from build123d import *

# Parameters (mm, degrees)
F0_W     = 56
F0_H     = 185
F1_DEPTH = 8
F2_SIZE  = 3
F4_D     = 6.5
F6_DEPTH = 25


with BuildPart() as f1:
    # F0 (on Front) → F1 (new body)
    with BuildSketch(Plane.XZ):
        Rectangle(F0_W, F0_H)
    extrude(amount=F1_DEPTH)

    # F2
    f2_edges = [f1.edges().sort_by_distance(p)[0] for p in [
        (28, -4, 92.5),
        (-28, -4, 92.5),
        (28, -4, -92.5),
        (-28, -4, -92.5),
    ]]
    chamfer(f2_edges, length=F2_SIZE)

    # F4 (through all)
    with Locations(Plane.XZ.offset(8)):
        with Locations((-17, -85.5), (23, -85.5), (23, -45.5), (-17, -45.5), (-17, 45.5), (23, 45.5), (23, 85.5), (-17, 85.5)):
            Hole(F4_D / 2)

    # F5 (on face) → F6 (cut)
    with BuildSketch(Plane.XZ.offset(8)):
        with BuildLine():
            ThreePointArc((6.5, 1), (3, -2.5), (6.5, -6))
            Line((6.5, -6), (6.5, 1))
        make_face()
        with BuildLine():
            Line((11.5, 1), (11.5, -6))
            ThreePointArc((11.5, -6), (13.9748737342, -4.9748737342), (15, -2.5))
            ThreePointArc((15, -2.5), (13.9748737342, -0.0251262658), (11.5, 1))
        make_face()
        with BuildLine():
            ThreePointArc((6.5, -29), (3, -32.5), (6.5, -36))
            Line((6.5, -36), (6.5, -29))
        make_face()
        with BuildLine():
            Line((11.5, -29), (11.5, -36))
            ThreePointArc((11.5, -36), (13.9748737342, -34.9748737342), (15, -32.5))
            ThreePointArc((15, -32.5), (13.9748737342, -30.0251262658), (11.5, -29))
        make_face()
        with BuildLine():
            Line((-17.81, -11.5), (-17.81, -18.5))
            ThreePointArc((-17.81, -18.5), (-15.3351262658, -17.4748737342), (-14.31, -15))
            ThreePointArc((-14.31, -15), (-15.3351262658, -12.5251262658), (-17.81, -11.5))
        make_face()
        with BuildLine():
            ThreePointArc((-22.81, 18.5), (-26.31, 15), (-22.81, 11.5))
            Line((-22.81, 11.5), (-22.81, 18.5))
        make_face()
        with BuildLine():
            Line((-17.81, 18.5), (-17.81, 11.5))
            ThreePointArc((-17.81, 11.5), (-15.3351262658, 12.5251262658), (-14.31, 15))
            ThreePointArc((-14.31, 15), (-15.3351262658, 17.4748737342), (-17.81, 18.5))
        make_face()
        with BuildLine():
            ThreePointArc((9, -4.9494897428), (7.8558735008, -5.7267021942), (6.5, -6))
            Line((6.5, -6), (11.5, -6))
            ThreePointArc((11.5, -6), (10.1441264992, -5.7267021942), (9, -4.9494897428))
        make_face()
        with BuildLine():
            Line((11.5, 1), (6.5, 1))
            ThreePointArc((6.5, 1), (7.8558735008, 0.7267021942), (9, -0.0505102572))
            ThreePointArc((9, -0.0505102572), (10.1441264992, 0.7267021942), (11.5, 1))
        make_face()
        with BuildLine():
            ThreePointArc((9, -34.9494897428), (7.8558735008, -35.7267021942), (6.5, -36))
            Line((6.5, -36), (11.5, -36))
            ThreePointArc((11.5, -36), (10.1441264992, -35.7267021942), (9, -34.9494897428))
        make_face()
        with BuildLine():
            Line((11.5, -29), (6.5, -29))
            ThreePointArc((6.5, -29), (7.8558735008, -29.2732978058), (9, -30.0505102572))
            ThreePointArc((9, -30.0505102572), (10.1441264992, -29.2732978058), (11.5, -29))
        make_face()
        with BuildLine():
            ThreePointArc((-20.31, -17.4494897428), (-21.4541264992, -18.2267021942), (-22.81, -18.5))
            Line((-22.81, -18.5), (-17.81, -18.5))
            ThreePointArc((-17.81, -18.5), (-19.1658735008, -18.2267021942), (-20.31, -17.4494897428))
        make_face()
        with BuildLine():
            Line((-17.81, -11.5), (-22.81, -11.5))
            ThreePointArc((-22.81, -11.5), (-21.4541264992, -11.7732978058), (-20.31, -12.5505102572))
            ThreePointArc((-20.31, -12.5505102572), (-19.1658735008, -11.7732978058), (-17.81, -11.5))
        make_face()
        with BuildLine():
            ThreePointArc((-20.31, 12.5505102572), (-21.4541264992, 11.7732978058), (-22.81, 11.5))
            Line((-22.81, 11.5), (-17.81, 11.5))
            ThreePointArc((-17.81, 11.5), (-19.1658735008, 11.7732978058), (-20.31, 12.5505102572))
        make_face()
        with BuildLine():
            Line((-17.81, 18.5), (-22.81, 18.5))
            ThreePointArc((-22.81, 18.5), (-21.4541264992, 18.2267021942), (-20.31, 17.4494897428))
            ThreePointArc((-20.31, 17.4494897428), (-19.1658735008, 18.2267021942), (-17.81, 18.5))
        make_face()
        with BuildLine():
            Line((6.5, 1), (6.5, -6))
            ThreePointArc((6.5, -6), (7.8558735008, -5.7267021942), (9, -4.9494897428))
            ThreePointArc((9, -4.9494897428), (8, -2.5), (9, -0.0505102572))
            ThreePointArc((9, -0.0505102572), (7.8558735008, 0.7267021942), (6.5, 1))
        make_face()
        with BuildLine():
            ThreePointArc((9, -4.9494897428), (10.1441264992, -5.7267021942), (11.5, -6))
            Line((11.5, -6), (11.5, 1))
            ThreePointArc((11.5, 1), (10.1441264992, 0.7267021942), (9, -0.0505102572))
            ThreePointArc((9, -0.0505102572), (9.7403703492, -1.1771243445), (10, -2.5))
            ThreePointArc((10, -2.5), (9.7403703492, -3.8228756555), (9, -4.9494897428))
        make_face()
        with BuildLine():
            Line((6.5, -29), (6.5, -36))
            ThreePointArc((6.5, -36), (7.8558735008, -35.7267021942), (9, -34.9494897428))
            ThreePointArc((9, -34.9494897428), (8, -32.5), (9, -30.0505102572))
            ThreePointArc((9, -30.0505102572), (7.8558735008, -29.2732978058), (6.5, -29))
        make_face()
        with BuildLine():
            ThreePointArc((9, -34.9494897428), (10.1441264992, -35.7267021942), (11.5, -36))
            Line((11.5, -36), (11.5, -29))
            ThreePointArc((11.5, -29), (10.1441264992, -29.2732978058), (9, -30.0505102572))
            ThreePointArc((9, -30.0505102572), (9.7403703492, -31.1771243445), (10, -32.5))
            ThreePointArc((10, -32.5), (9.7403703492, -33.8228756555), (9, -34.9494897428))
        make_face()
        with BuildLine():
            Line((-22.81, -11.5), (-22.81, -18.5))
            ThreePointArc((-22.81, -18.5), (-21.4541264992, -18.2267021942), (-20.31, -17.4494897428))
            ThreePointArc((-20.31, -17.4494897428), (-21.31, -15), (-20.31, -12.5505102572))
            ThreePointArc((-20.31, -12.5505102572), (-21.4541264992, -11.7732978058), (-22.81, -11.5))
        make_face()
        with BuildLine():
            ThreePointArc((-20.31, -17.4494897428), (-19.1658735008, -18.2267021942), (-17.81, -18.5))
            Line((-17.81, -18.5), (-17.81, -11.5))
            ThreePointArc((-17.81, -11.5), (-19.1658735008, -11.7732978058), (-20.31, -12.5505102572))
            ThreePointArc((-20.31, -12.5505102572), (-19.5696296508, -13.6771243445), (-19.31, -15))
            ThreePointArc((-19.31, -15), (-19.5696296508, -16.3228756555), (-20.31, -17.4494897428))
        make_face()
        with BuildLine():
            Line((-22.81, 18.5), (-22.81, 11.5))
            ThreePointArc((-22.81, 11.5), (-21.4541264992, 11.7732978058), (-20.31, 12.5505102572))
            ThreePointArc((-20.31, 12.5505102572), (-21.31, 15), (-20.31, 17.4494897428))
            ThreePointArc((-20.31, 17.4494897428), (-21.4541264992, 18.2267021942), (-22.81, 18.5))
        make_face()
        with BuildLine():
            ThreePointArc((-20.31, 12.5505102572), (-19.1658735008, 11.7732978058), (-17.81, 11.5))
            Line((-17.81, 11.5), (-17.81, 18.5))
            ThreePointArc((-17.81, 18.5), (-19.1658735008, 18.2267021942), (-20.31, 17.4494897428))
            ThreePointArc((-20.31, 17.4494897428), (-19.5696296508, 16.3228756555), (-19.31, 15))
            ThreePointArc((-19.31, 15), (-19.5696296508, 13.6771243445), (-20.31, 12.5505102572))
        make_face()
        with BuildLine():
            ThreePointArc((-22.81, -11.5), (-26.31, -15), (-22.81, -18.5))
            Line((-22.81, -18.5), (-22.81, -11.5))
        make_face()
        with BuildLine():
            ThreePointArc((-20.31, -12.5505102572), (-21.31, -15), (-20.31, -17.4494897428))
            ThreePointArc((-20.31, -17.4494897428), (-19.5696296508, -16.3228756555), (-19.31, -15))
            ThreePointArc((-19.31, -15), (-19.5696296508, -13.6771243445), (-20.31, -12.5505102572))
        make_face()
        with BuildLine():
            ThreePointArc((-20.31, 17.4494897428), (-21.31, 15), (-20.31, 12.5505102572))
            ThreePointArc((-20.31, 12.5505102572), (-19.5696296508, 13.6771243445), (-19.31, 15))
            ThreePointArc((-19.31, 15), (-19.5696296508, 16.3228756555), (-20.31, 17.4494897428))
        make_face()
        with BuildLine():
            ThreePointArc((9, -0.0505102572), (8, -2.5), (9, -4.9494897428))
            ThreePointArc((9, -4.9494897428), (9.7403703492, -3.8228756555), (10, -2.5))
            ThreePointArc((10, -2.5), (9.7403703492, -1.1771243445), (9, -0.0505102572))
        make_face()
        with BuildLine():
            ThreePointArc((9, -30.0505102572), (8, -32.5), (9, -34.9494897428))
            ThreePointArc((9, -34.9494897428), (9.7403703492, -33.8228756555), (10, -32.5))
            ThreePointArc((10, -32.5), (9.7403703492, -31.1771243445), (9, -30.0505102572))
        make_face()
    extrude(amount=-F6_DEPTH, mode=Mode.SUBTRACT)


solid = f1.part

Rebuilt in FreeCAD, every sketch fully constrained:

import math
import FreeCAD as App
import Part
import Sketcher

V = App.Vector


def edges_at(feature, points):
    """Names of the edges that pass closest to the given points."""
    edges = feature.Shape.Edges
    near = lambda p: min(range(len(edges)), key=lambda i: edges[i].distToShape(Part.Vertex(*p))[0])
    return sorted({f"Edge{near(p) + 1}" for p in points})


def add_polygon(sketch, points):
    """Adds a closed chain of lines whose ends are joined by coincident constraints."""
    first, n = sketch.GeometryCount, len(points)
    for a, b in zip(points, points[1:] + points[:1]):
        sketch.addGeometry(Part.LineSegment(App.Vector(*a, 0), App.Vector(*b, 0)), False)
    for i in range(n):
        sketch.addConstraint(Sketcher.Constraint("Coincident", first + i, 2, first + (i + 1) % n, 1))

doc = App.newDocument("Part")
body = doc.addObject("PartDesign::Body", "Body")

# Sketch on XZ plane
sketch1 = body.newObject("Sketcher::SketchObject", "Sketch")
sketch1.AttachmentSupport = (doc.getObject("XZ_Plane"), [""])
sketch1.MapMode = "FlatFace"
add_polygon(sketch1, [(-28, 92.5), (-28, -92.5), (28, -92.5), (28, 92.5)])  # lines 0-3
sketch1.addConstraint(Sketcher.Constraint("Vertical", 0))
sketch1.addConstraint(Sketcher.Constraint("Horizontal", 1))
sketch1.addConstraint(Sketcher.Constraint("Vertical", 2))
sketch1.addConstraint(Sketcher.Constraint("Horizontal", 3))
sketch1.addConstraint(Sketcher.Constraint("Symmetric", 0, 2, 2, 2, -1, 1))
sketch1.addConstraint(Sketcher.Constraint("DistanceX", 1, 1, 1, 2, 56.0))
sketch1.addConstraint(Sketcher.Constraint("DistanceY", 0, 2, 0, 1, 185.0))
pad1 = body.newObject("PartDesign::Pad", "Pad")
pad1.Profile = sketch1
pad1.Length = 8
doc.recompute()

chamfer = body.newObject("PartDesign::Chamfer", "Chamfer")
chamfer.Base = (pad1, edges_at(pad1, [
    (28, -4, 92.5),
    (-28, -4, 92.5),
    (28, -4, -92.5),
    (-28, -4, -92.5),
]))
chamfer.Size = 3

# Sketch on XZ plane
sketch2 = body.newObject("Sketcher::SketchObject", "Sketch001")
sketch2.AttachmentSupport = (doc.getObject("XZ_Plane"), [""])
sketch2.MapMode = "FlatFace"
sketch2.AttachmentOffset = App.Placement(V(0, 0, 8), App.Rotation())
sketch2.addGeometry(Part.Circle(V(-17, -85.5, 0), V(0, 0, 1), 3.25), False)
sketch2.addGeometry(Part.Circle(V(23, -85.5, 0), V(0, 0, 1), 3.25), False)
sketch2.addGeometry(Part.Circle(V(23, -45.5, 0), V(0, 0, 1), 3.25), False)
sketch2.addGeometry(Part.Circle(V(-17, -45.5, 0), V(0, 0, 1), 3.25), False)
sketch2.addGeometry(Part.Circle(V(-17, 45.5, 0), V(0, 0, 1), 3.25), False)
sketch2.addGeometry(Part.Circle(V(23, 45.5, 0), V(0, 0, 1), 3.25), False)
sketch2.addGeometry(Part.Circle(V(23, 85.5, 0), V(0, 0, 1), 3.25), False)
sketch2.addGeometry(Part.Circle(V(-17, 85.5, 0), V(0, 0, 1), 3.25), False)
sketch2.addConstraint(Sketcher.Constraint("Equal", 0, 1))
sketch2.addConstraint(Sketcher.Constraint("Equal", 1, 2))
sketch2.addConstraint(Sketcher.Constraint("Equal", 2, 3))
sketch2.addConstraint(Sketcher.Constraint("Equal", 3, 4))
sketch2.addConstraint(Sketcher.Constraint("Equal", 4, 5))
sketch2.addConstraint(Sketcher.Constraint("Equal", 5, 6))
sketch2.addConstraint(Sketcher.Constraint("Equal", 6, 7))
sketch2.addConstraint(Sketcher.Constraint("Symmetric", 3, 3, 4, 3, -1))
sketch2.addConstraint(Sketcher.Constraint("Symmetric", 2, 3, 5, 3, -1))
sketch2.addConstraint(Sketcher.Constraint("Symmetric", 1, 3, 6, 3, -1))
sketch2.addConstraint(Sketcher.Constraint("Symmetric", 0, 3, 7, 3, -1))
sketch2.addConstraint(Sketcher.Constraint("Horizontal", 0, 3, 1, 3))
sketch2.addConstraint(Sketcher.Constraint("Horizontal", 2, 3, 3, 3))
sketch2.addConstraint(Sketcher.Constraint("Vertical", 1, 3, 2, 3))
sketch2.addConstraint(Sketcher.Constraint("Vertical", 0, 3, 3, 3))
sketch2.addConstraint(Sketcher.Constraint("Diameter", 0, 6.5))
sketch2.addConstraint(Sketcher.Constraint("DistanceX", 0, 3, -1, 1, 17.0))
sketch2.addConstraint(Sketcher.Constraint("DistanceX", -1, 1, 1, 3, 23.0))
sketch2.addConstraint(Sketcher.Constraint("DistanceY", 1, 3, 2, 3, 40.0))
sketch2.addConstraint(Sketcher.Constraint("DistanceY", 3, 3, 4, 3, 91.0))
doc.recompute()
hole = body.newObject("PartDesign::Hole", "Hole")
hole.Profile = sketch2
hole.ThreadType = "None"
hole.Diameter = 6.5
hole.DepthType = "ThroughAll"

# Sketch on XZ plane
sketch3 = body.newObject("Sketcher::SketchObject", "Sketch002")
sketch3.AttachmentSupport = (doc.getObject("XZ_Plane"), [""])
sketch3.MapMode = "FlatFace"
sketch3.AttachmentOffset = App.Placement(V(0, 0, 8), App.Rotation())
sketch3.addGeometry(Part.ArcOfCircle(Part.Circle(V(6.5, -2.5, 0), V(0, 0, 1), 3.5), math.radians(90), math.radians(270)), False)
sketch3.addGeometry(Part.LineSegment(V(6.5, -6, 0), V(11.5, -6, 0)), False)
sketch3.addGeometry(Part.ArcOfCircle(Part.Circle(V(11.5, -2.5, 0), V(0, 0, 1), 3.5), math.radians(-90), math.radians(0)), False)
sketch3.addGeometry(Part.ArcOfCircle(Part.Circle(V(11.5, -2.5, 0), V(0, 0, 1), 3.5), math.radians(0), math.radians(90)), False)
sketch3.addGeometry(Part.LineSegment(V(11.5, 1, 0), V(6.5, 1, 0)), False)
sketch3.addGeometry(Part.ArcOfCircle(Part.Circle(V(6.5, -32.5, 0), V(0, 0, 1), 3.5), math.radians(90), math.radians(270)), False)
sketch3.addGeometry(Part.LineSegment(V(6.5, -36, 0), V(11.5, -36, 0)), False)
sketch3.addGeometry(Part.ArcOfCircle(Part.Circle(V(11.5, -32.5, 0), V(0, 0, 1), 3.5), math.radians(-90), math.radians(0)), False)
sketch3.addGeometry(Part.ArcOfCircle(Part.Circle(V(11.5, -32.5, 0), V(0, 0, 1), 3.5), math.radians(0), math.radians(90)), False)
sketch3.addGeometry(Part.LineSegment(V(11.5, -29, 0), V(6.5, -29, 0)), False)
sketch3.addGeometry(Part.ArcOfCircle(Part.Circle(V(-17.81, -15, 0), V(0, 0, 1), 3.5), math.radians(-90), math.radians(0)), False)
sketch3.addGeometry(Part.ArcOfCircle(Part.Circle(V(-17.81, -15, 0), V(0, 0, 1), 3.5), math.radians(0), math.radians(90)), False)
sketch3.addGeometry(Part.LineSegment(V(-17.81, -11.5, 0), V(-22.81, -11.5, 0)), False)
sketch3.addGeometry(Part.ArcOfCircle(Part.Circle(V(-22.81, -15, 0), V(0, 0, 1), 3.5), math.radians(90), math.radians(270)), False)
sketch3.addGeometry(Part.LineSegment(V(-22.81, -18.5, 0), V(-17.81, -18.5, 0)), False)
sketch3.addGeometry(Part.ArcOfCircle(Part.Circle(V(-22.81, 15, 0), V(0, 0, 1), 3.5), math.radians(90), math.radians(270)), False)
sketch3.addGeometry(Part.LineSegment(V(-22.81, 11.5, 0), V(-17.81, 11.5, 0)), False)
sketch3.addGeometry(Part.ArcOfCircle(Part.Circle(V(-17.81, 15, 0), V(0, 0, 1), 3.5), math.radians(-90), math.radians(0)), False)
sketch3.addGeometry(Part.ArcOfCircle(Part.Circle(V(-17.81, 15, 0), V(0, 0, 1), 3.5), math.radians(0), math.radians(90)), False)
sketch3.addGeometry(Part.LineSegment(V(-17.81, 18.5, 0), V(-22.81, 18.5, 0)), False)
sketch3.addConstraint(Sketcher.Constraint("Tangent", 0, 2, 1, 1))
sketch3.addConstraint(Sketcher.Constraint("Tangent", 1, 2, 2, 1))
sketch3.addConstraint(Sketcher.Constraint("Tangent", 2, 2, 3, 1))
sketch3.addConstraint(Sketcher.Constraint("Tangent", 3, 2, 4, 1))
sketch3.addConstraint(Sketcher.Constraint("Tangent", 4, 2, 0, 1))
sketch3.addConstraint(Sketcher.Constraint("Tangent", 5, 2, 6, 1))
sketch3.addConstraint(Sketcher.Constraint("Tangent", 6, 2, 7, 1))
sketch3.addConstraint(Sketcher.Constraint("Tangent", 7, 2, 8, 1))
sketch3.addConstraint(Sketcher.Constraint("Tangent", 8, 2, 9, 1))
sketch3.addConstraint(Sketcher.Constraint("Tangent", 9, 2, 5, 1))
sketch3.addConstraint(Sketcher.Constraint("Tangent", 10, 2, 11, 1))
sketch3.addConstraint(Sketcher.Constraint("Tangent", 11, 2, 12, 1))
sketch3.addConstraint(Sketcher.Constraint("Tangent", 12, 2, 13, 1))
sketch3.addConstraint(Sketcher.Constraint("Tangent", 13, 2, 14, 1))
sketch3.addConstraint(Sketcher.Constraint("Tangent", 14, 2, 10, 1))
sketch3.addConstraint(Sketcher.Constraint("Tangent", 15, 2, 16, 1))
sketch3.addConstraint(Sketcher.Constraint("Tangent", 16, 2, 17, 1))
sketch3.addConstraint(Sketcher.Constraint("Tangent", 17, 2, 18, 1))
sketch3.addConstraint(Sketcher.Constraint("Tangent", 18, 2, 19, 1))
sketch3.addConstraint(Sketcher.Constraint("Tangent", 19, 2, 15, 1))
sketch3.addConstraint(Sketcher.Constraint("Horizontal", 1))
sketch3.addConstraint(Sketcher.Constraint("Horizontal", 4))
sketch3.addConstraint(Sketcher.Constraint("Horizontal", 6))
sketch3.addConstraint(Sketcher.Constraint("Horizontal", 9))
sketch3.addConstraint(Sketcher.Constraint("Horizontal", 12))
sketch3.addConstraint(Sketcher.Constraint("Horizontal", 14))
sketch3.addConstraint(Sketcher.Constraint("Horizontal", 16))
sketch3.addConstraint(Sketcher.Constraint("Horizontal", 19))
sketch3.addConstraint(Sketcher.Constraint("Equal", 0, 2))
sketch3.addConstraint(Sketcher.Constraint("Equal", 3, 5))
sketch3.addConstraint(Sketcher.Constraint("Equal", 5, 7))
sketch3.addConstraint(Sketcher.Constraint("Equal", 8, 10))
sketch3.addConstraint(Sketcher.Constraint("Equal", 10, 11))
sketch3.addConstraint(Sketcher.Constraint("Equal", 13, 15))
sketch3.addConstraint(Sketcher.Constraint("Equal", 15, 17))
sketch3.addConstraint(Sketcher.Constraint("Symmetric", 13, 3, 15, 3, -1))
sketch3.addConstraint(Sketcher.Constraint("Symmetric", 10, 2, 17, 2, -1))
sketch3.addConstraint(Sketcher.Constraint("Horizontal", 3, 3, 2, 2))
sketch3.addConstraint(Sketcher.Constraint("Horizontal", 8, 3, 7, 2))
sketch3.addConstraint(Sketcher.Constraint("Horizontal", 13, 3, 10, 2))
sketch3.addConstraint(Sketcher.Constraint("Vertical", 0, 3, 5, 3))
sketch3.addConstraint(Sketcher.Constraint("Vertical", 3, 3, 7, 3))
sketch3.addConstraint(Sketcher.Constraint("Equal", 9, 12))
sketch3.addConstraint(Sketcher.Constraint("Radius", 0, 3.5))
sketch3.addConstraint(Sketcher.Constraint("DistanceX", 1, 1, 1, 2, 5.0))
sketch3.addConstraint(Sketcher.Constraint("DistanceY", 10, 3, -1, 1, 15.0))
sketch3.addConstraint(Sketcher.Constraint("DistanceY", 0, 2, -1, 1, 6.0))
sketch3.addConstraint(Sketcher.Constraint("DistanceX", -1, 1, 2, 2, 15.0))
sketch3.addConstraint(Sketcher.Constraint("DistanceY", 5, 2, -1, 1, 36.0))
sketch3.addConstraint(Sketcher.Constraint("DistanceX", 10, 3, -1, 1, 17.81))
pocket1 = body.newObject("PartDesign::Pocket", "Pocket")
pocket1.Profile = sketch3
pocket1.Length = 25

doc.recompute()
